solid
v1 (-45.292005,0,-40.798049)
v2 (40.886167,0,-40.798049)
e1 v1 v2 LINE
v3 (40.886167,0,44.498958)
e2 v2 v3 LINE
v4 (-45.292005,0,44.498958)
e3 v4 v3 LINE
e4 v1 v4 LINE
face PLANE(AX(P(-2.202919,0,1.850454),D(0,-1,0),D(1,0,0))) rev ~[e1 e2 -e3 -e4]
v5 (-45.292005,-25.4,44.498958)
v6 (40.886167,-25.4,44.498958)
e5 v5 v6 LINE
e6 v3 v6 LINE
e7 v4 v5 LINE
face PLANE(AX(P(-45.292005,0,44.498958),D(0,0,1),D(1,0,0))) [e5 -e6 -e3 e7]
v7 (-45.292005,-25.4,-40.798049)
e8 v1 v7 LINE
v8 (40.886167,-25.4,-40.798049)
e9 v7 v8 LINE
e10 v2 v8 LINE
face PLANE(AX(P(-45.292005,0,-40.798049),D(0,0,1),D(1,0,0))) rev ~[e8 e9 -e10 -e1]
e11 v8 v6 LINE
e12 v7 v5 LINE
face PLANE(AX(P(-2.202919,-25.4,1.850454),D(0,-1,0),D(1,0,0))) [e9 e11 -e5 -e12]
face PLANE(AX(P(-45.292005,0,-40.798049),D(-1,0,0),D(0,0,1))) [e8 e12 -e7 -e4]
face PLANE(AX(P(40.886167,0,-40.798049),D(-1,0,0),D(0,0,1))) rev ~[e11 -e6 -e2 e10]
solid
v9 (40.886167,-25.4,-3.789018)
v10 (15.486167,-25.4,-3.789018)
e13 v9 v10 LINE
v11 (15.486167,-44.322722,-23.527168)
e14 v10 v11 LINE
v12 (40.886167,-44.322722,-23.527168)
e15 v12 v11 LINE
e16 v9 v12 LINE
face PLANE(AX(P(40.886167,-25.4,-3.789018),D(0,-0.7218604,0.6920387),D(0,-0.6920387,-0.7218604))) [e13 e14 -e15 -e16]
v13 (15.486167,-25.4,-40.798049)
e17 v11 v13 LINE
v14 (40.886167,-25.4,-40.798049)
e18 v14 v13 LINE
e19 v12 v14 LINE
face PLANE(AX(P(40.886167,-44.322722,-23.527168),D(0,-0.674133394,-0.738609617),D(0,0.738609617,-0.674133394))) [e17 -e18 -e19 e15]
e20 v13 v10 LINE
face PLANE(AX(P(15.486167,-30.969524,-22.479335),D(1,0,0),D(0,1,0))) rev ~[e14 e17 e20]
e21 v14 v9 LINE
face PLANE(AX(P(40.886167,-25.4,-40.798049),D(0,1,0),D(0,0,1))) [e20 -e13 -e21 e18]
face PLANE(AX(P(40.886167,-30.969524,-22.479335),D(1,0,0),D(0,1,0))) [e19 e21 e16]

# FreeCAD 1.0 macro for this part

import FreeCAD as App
import Part
import Sketcher

V = App.Vector
Q = App.Units.Quantity

doc = App.newDocument("Part")
params = doc.addObject("Spreadsheet::Sheet", "Params")
for row, (alias, value) in enumerate([
    ("pad1_length", "1 in"),
    ("pad2_length", "1 in"),
], start=1):
    params.set(f"A{row}", alias)
    params.set(f"B{row}", "=" + value)
    params.setAlias(f"B{row}", alias)

body = doc.addObject("PartDesign::Body", "Body")

sketch1 = body.newObject("Sketcher::SketchObject", "Sketch")
sketch1.AttachmentSupport = (doc.getObject("XZ_Plane"), [""])
sketch1.MapMode = "FlatFace"
sketch1.addGeometry([
    Part.LineSegment(V(-45.292005, 44.498958, 0), V(-45.292005, -40.798049, 0)),
    Part.LineSegment(V(-45.292005, -40.798049, 0), V(40.886167, -40.798049, 0)),
    Part.LineSegment(V(40.886167, -40.798049, 0), V(40.886167, 44.498958, 0)),
    Part.LineSegment(V(40.886167, 44.498958, 0), V(-45.292005, 44.498958, 0)),
], False)
sketch1.addConstraint([
    Sketcher.Constraint("Coincident", 0, 2, 1, 1),
    Sketcher.Constraint("Coincident", 1, 2, 2, 1),
    Sketcher.Constraint("Coincident", 2, 2, 3, 1),
    Sketcher.Constraint("Coincident", 3, 2, 0, 1),
    Sketcher.Constraint("Vertical", 0),
    Sketcher.Constraint("Horizontal", 1),
    Sketcher.Constraint("Vertical", 2),
    Sketcher.Constraint("Horizontal", 3),
    Sketcher.Constraint("DistanceX", 1, 1, 1, 2, 86.178172),
    Sketcher.Constraint("DistanceY", 0, 2, 0, 1, 85.297007),
    Sketcher.Constraint("DistanceY", 0, 2, -1, 1, 40.798049),
    Sketcher.Constraint("DistanceX", 0, 2, -1, 1, 45.292005),
])
pad1 = body.newObject("PartDesign::Pad", "Pad")
pad1.Profile = sketch1
pad1.setExpression("Length", "Params.pad1_length")
body2 = doc.addObject("PartDesign::Body", "Body001")

sketch2 = body2.newObject("Sketcher::SketchObject", "Sketch001")
sketch2.AttachmentSupport = (doc.getObject("YZ_Plane001"), [""])
sketch2.MapMode = "FlatFace"
sketch2.AttachmentOffset = App.Placement(V(0, 0, 40.886167), App.Rotation())
sketch2.addGeometry([
    Part.LineSegment(V(-25.4, -40.798049, 0), V(-25.4, -3.789018, 0)),
    Part.LineSegment(V(-25.4, -3.789018, 0), V(-44.322722, -23.527168, 0)),
    Part.LineSegment(V(-44.322722, -23.527168, 0), V(-25.4, -40.798049, 0)),
], False)
sketch2.addConstraint([
    Sketcher.Constraint("Coincident", 0, 2, 1, 1),
    Sketcher.Constraint("Coincident", 1, 2, 2, 1),
    Sketcher.Constraint("Coincident", 2, 2, 0, 1),
    Sketcher.Constraint("Vertical", 0),
    Sketcher.Constraint("DistanceX", 0, 2, -1, 1, Q("1 in")),
    Sketcher.Constraint("DistanceY", 0, 1, 0, 2, 37.009031),
    Sketcher.Constraint("DistanceY", 0, 2, -1, 1, 3.789018),
    Sketcher.Constraint("DistanceX", 1, 2, 0, 2, 18.922722),
    Sketcher.Constraint("DistanceY", 1, 2, 0, 2, 19.73815),
])
pad2 = body2.newObject("PartDesign::Pad", "Pad001")
pad2.Profile = sketch2
pad2.setExpression("Length", "Params.pad2_length")
pad2.Reversed = True

doc.recompute()
